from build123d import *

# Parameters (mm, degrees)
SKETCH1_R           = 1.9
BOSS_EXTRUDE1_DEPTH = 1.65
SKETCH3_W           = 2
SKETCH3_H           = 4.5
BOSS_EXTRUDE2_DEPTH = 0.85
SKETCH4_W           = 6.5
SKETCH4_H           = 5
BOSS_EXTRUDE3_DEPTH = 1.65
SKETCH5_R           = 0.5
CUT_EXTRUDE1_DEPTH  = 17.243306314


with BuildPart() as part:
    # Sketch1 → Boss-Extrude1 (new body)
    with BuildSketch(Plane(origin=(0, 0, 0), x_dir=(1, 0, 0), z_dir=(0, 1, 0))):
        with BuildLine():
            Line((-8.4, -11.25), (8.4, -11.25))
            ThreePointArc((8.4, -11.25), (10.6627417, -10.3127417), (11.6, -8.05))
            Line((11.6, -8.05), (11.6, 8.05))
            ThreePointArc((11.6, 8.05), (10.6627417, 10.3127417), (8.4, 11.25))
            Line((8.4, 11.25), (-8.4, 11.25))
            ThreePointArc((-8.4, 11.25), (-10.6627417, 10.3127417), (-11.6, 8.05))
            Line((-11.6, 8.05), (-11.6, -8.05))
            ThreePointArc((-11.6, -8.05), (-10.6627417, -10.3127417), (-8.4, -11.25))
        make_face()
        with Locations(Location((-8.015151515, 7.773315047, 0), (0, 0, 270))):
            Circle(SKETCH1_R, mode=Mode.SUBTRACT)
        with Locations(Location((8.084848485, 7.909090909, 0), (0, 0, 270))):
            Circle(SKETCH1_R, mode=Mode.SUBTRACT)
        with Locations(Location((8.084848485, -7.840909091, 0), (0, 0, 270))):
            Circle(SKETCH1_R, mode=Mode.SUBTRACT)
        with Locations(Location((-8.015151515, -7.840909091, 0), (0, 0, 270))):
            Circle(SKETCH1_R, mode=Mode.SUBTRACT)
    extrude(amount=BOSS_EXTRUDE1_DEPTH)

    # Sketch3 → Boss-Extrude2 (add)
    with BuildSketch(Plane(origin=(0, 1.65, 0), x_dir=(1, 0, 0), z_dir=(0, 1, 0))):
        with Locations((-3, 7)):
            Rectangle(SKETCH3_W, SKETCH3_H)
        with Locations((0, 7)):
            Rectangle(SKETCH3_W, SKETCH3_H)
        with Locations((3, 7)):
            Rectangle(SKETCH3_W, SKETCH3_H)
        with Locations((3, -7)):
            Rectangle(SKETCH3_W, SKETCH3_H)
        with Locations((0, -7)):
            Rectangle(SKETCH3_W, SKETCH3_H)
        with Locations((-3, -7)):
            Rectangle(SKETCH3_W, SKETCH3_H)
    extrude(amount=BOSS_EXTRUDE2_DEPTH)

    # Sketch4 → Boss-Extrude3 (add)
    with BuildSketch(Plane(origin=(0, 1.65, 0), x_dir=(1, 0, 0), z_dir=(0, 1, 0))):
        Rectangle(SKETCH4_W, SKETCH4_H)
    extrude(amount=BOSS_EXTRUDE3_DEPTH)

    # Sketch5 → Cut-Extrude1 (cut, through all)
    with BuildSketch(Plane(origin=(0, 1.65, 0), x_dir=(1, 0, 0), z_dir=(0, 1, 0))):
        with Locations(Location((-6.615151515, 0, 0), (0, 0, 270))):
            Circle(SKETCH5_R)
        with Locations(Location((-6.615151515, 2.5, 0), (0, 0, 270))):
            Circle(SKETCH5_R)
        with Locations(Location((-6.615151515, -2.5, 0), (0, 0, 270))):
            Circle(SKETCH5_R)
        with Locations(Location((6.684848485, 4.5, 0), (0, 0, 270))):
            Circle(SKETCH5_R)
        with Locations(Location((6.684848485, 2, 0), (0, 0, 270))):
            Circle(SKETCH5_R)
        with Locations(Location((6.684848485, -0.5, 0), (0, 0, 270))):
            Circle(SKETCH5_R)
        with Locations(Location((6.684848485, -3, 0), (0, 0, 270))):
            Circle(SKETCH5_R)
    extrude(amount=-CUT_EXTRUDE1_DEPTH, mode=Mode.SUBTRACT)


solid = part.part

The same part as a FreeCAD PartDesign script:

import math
import FreeCAD as App
import Part
import Sketcher

V = App.Vector

doc = App.newDocument("Part")
params = doc.addObject("Spreadsheet::Sheet", "Params")
for row, (alias, value) in enumerate([
    ("sketch1_diameter", "3.8 mm"),
    ("sketch1_radius", "3.2 mm"),
    ("sketch1_width", "16.8 mm"),
    ("sketch1_height", "16.1 mm"),
    ("pad1_length", "1.65 mm"),
    ("sketch2_width", "2 mm"),
    ("sketch2_height", "4.5 mm"),
    ("pad2_length", "0.85 mm"),
    ("sketch3_height", "5 mm"),
    ("sketch3_width", "6.5 mm"),
    ("pad3_length", "1.65 mm"),
    ("sketch4_diameter", "1 mm"),
], start=1):
    params.set(f"A{row}", alias)
    params.set(f"B{row}", "=" + value)
    params.setAlias(f"B{row}", alias)

body = doc.addObject("PartDesign::Body", "Body")

# Sketch on XZ plane
sketch1 = body.newObject("Sketcher::SketchObject", "Sketch")
sketch1.AttachmentSupport = (doc.getObject("XZ_Plane"), [""])
sketch1.MapMode = "FlatFace"
sketch1.addGeometry(Part.LineSegment(V(-8.4, 11.2, 0), V(8.4, 11.2, 0)), False)
sketch1.addGeometry(Part.ArcOfCircle(Part.Circle(V(8.4, 8.1, 0), V(0, 0, 1), 3.2), math.radians(0), math.radians(90)), False)
sketch1.addGeometry(Part.LineSegment(V(11.6, 8.1, 0), V(11.6, -8.1, 0)), False)
sketch1.addGeometry(Part.ArcOfCircle(Part.Circle(V(8.4, -8.1, 0), V(0, 0, 1), 3.2), math.radians(-90), math.radians(0)), False)
sketch1.addGeometry(Part.LineSegment(V(8.4, -11.2, 0), V(-8.4, -11.2, 0)), False)
sketch1.addGeometry(Part.ArcOfCircle(Part.Circle(V(-8.4, -8.1, 0), V(0, 0, 1), 3.2), math.radians(180), math.radians(270)), False)
sketch1.addGeometry(Part.LineSegment(V(-11.6, -8.1, 0), V(-11.6, 8.1, 0)), False)
sketch1.addGeometry(Part.ArcOfCircle(Part.Circle(V(-8.4, 8.1, 0), V(0, 0, 1), 3.2), math.radians(90), math.radians(180)), False)
sketch1.addGeometry(Part.Circle(V(-8, 7.8, 0), V(0, 0, 1), 1.9), False)
sketch1.addGeometry(Part.Circle(V(8.1, 7.8, 0), V(0, 0, 1), 1.9), False)
sketch1.addGeometry(Part.Circle(V(-8, -7.8, 0), V(0, 0, 1), 1.9), False)
sketch1.addGeometry(Part.Circle(V(8.1, -7.9, 0), V(0, 0, 1), 1.9), False)
sketch1.addConstraint(Sketcher.Constraint("Tangent", 0, 2, 1, 2))
sketch1.addConstraint(Sketcher.Constraint("Tangent", 1, 1, 2, 1))
sketch1.addConstraint(Sketcher.Constraint("Tangent", 2, 2, 3, 2))
sketch1.addConstraint(Sketcher.Constraint("Tangent", 3, 1, 4, 1))
sketch1.addConstraint(Sketcher.Constraint("Tangent", 4, 2, 5, 2))
sketch1.addConstraint(Sketcher.Constraint("Tangent", 5, 1, 6, 1))
sketch1.addConstraint(Sketcher.Constraint("Tangent", 6, 2, 7, 2))
sketch1.addConstraint(Sketcher.Constraint("Tangent", 7, 1, 0, 1))
sketch1.addConstraint(Sketcher.Constraint("Horizontal", 0))
sketch1.addConstraint(Sketcher.Constraint("Vertical", 2))
sketch1.addConstraint(Sketcher.Constraint("Horizontal", 4))
sketch1.addConstraint(Sketcher.Constraint("Vertical", 6))
sketch1.addConstraint(Sketcher.Constraint("Equal", 1, 3))
sketch1.addConstraint(Sketcher.Constraint("Equal", 3, 5))
sketch1.addConstraint(Sketcher.Constraint("Equal", 5, 7))
sketch1.addConstraint(Sketcher.Constraint("Equal", 8, 9))
sketch1.addConstraint(Sketcher.Constraint("Equal", 9, 10))
sketch1.addConstraint(Sketcher.Constraint("Equal", 10, 11))
sketch1.addConstraint(Sketcher.Constraint("Symmetric", 1, 3, 5, 3, -1, 1))
sketch1.addConstraint(Sketcher.Constraint("Horizontal", 8, 3, 9, 3))
sketch1.addConstraint(Sketcher.Constraint("Vertical", 8, 3, 10, 3))
sketch1.addConstraint(Sketcher.Constraint("Vertical", 9, 3, 11, 3))
sketch1.addConstraint(Sketcher.Constraint("Diameter", 8, 3.8))
sketch1.addConstraint(Sketcher.Constraint("Radius", 1, 3.2))
sketch1.addConstraint(Sketcher.Constraint("DistanceX", 0, 1, 0, 2, 16.8))
sketch1.addConstraint(Sketcher.Constraint("DistanceY", 2, 2, 2, 1, 16.1))
sketch1.addConstraint(Sketcher.Constraint("DistanceX", 8, 3, 9, 3, 16.1))
sketch1.addConstraint(Sketcher.Constraint("DistanceY", 11, 3, 9, 3, 15.75))
sketch1.addConstraint(Sketcher.Constraint("DistanceX", 8, 3, -1, 1, 8.015152))
sketch1.addConstraint(Sketcher.Constraint("DistanceY", -1, 1, 8, 3, 7.840909))
sketch1.addConstraint(Sketcher.Constraint("DistanceY", 10, 3, -1, 1, 7.773315))
sketch1.setExpression("Constraints[22]", "Params.sketch1_diameter")
sketch1.setExpression("Constraints[23]", "Params.sketch1_radius")
sketch1.setExpression("Constraints[24]", "Params.sketch1_width")
sketch1.setExpression("Constraints[25]", "Params.sketch1_height")
pad1 = body.newObject("PartDesign::Pad", "Pad")
pad1.Profile = sketch1
pad1.setExpression("Length", "Params.pad1_length")
pad1.Reversed = True

# Sketch on XZ plane
sketch2 = body.newObject("Sketcher::SketchObject", "Sketch001")
sketch2.AttachmentSupport = (doc.getObject("XZ_Plane"), [""])
sketch2.MapMode = "FlatFace"
sketch2.AttachmentOffset = App.Placement(V(0, 0, -1.65), App.Rotation())
sketch2.addGeometry(Part.LineSegment(V(-4, -9.2, 0), V(-4, -4.8, 0)), False)
sketch2.addGeometry(Part.LineSegment(V(-4, -4.8, 0), V(-2, -4.8, 0)), False)
sketch2.addGeometry(Part.LineSegment(V(-2, -4.8, 0), V(-2, -9.2, 0)), False)
sketch2.addGeometry(Part.LineSegment(V(-2, -9.2, 0), V(-4, -9.2, 0)), False)
sketch2.addGeometry(Part.LineSegment(V(-1, -9.2, 0), V(-1, -4.8, 0)), False)
sketch2.addGeometry(Part.LineSegment(V(-1, -4.8, 0), V(1, -4.8, 0)), False)
sketch2.addGeometry(Part.LineSegment(V(1, -4.8, 0), V(1, -9.2, 0)), False)
sketch2.addGeometry(Part.LineSegment(V(1, -9.2, 0), V(-1, -9.2, 0)), False)
sketch2.addGeometry(Part.LineSegment(V(2, -9.2, 0), V(2, -4.8, 0)), False)
sketch2.addGeometry(Part.LineSegment(V(2, -4.8, 0), V(4, -4.8, 0)), False)
sketch2.addGeometry(Part.LineSegment(V(4, -4.8, 0), V(4, -9.2, 0)), False)
sketch2.addGeometry(Part.LineSegment(V(4, -9.2, 0), V(2, -9.2, 0)), False)
sketch2.addGeometry(Part.LineSegment(V(2, 4.8, 0), V(2, 9.2, 0)), False)
sketch2.addGeometry(Part.LineSegment(V(2, 9.2, 0), V(4, 9.2, 0)), False)
sketch2.addGeometry(Part.LineSegment(V(4, 9.2, 0), V(4, 4.8, 0)), False)
sketch2.addGeometry(Part.LineSegment(V(4, 4.8, 0), V(2, 4.8, 0)), False)
sketch2.addGeometry(Part.LineSegment(V(-1, 4.8, 0), V(-1, 9.2, 0)), False)
sketch2.addGeometry(Part.LineSegment(V(-1, 9.2, 0), V(1, 9.2, 0)), False)
sketch2.addGeometry(Part.LineSegment(V(1, 9.2, 0), V(1, 4.8, 0)), False)
sketch2.addGeometry(Part.LineSegment(V(1, 4.8, 0), V(-1, 4.8, 0)), False)
sketch2.addGeometry(Part.LineSegment(V(-4, 4.8, 0), V(-4, 9.2, 0)), False)
sketch2.addGeometry(Part.LineSegment(V(-4, 9.2, 0), V(-2, 9.2, 0)), False)
sketch2.addGeometry(Part.LineSegment(V(-2, 9.2, 0), V(-2, 4.8, 0)), False)
sketch2.addGeometry(Part.LineSegment(V(-2, 4.8, 0), V(-4, 4.8, 0)), False)
sketch2.addConstraint(Sketcher.Constraint("Coincident", 0, 2, 1, 1))
sketch2.addConstraint(Sketcher.Constraint("Coincident", 1, 2, 2, 1))
sketch2.addConstraint(Sketcher.Constraint("Coincident", 2, 2, 3, 1))
sketch2.addConstraint(Sketcher.Constraint("Coincident", 3, 2, 0, 1))
sketch2.addConstraint(Sketcher.Constraint("Coincident", 4, 2, 5, 1))
sketch2.addConstraint(Sketcher.Constraint("Coincident", 5, 2, 6, 1))
sketch2.addConstraint(Sketcher.Constraint("Coincident", 6, 2, 7, 1))
sketch2.addConstraint(Sketcher.Constraint("Coincident", 7, 2, 4, 1))
sketch2.addConstraint(Sketcher.Constraint("Coincident", 8, 2, 9, 1))
sketch2.addConstraint(Sketcher.Constraint("Coincident", 9, 2, 10, 1))
sketch2.addConstraint(Sketcher.Constraint("Coincident", 10, 2, 11, 1))
sketch2.addConstraint(Sketcher.Constraint("Coincident", 11, 2, 8, 1))
sketch2.addConstraint(Sketcher.Constraint("Coincident", 12, 2, 13, 1))
sketch2.addConstraint(Sketcher.Constraint("Coincident", 13, 2, 14, 1))
sketch2.addConstraint(Sketcher.Constraint("Coincident", 14, 2, 15, 1))
sketch2.addConstraint(Sketcher.Constraint("Coincident", 15, 2, 12, 1))
sketch2.addConstraint(Sketcher.Constraint("Coincident", 16, 2, 17, 1))
sketch2.addConstraint(Sketcher.Constraint("Coincident", 17, 2, 18, 1))
sketch2.addConstraint(Sketcher.Constraint("Coincident", 18, 2, 19, 1))
sketch2.addConstraint(Sketcher.Constraint("Coincident", 19, 2, 16, 1))
sketch2.addConstraint(Sketcher.Constraint("Coincident", 20, 2, 21, 1))
sketch2.addConstraint(Sketcher.Constraint("Coincident", 21, 2, 22, 1))
sketch2.addConstraint(Sketcher.Constraint("Coincident", 22, 2, 23, 1))
sketch2.addConstraint(Sketcher.Constraint("Coincident", 23, 2, 20, 1))
sketch2.addConstraint(Sketcher.Constraint("Vertical", 0))
sketch2.addConstraint(Sketcher.Constraint("Horizontal", 1))
sketch2.addConstraint(Sketcher.Constraint("Vertical", 2))
sketch2.addConstraint(Sketcher.Constraint("Horizontal", 3))
sketch2.addConstraint(Sketcher.Constraint("Vertical", 4))
sketch2.addConstraint(Sketcher.Constraint("Horizontal", 5))
sketch2.addConstraint(Sketcher.Constraint("Vertical", 6))
sketch2.addConstraint(Sketcher.Constraint("Horizontal", 7))
sketch2.addConstraint(Sketcher.Constraint("Vertical", 8))
sketch2.addConstraint(Sketcher.Constraint("Horizontal", 9))
sketch2.addConstraint(Sketcher.Constraint("Vertical", 10))
sketch2.addConstraint(Sketcher.Constraint("Horizontal", 11))
sketch2.addConstraint(Sketcher.Constraint("Vertical", 12))
sketch2.addConstraint(Sketcher.Constraint("Horizontal", 13))
sketch2.addConstraint(Sketcher.Constraint("Vertical", 14))
sketch2.addConstraint(Sketcher.Constraint("Horizontal", 15))
sketch2.addConstraint(Sketcher.Constraint("Vertical", 16))
sketch2.addConstraint(Sketcher.Constraint("Horizontal", 17))
sketch2.addConstraint(Sketcher.Constraint("Vertical", 18))
sketch2.addConstraint(Sketcher.Constraint("Horizontal", 19))
sketch2.addConstraint(Sketcher.Constraint("Vertical", 20))
sketch2.addConstraint(Sketcher.Constraint("Horizontal", 21))
sketch2.addConstraint(Sketcher.Constraint("Vertical", 22))
sketch2.addConstraint(Sketcher.Constraint("Horizontal", 23))
sketch2.addConstraint(Sketcher.Constraint("Symmetric", 2, 2, 12, 2, -1, 1))
sketch2.addConstraint(Sketcher.Constraint("Symmetric", 0, 2, 14, 2, -1, 1))
sketch2.addConstraint(Sketcher.Constraint("Symmetric", 6, 2, 16, 2, -1, 1))
sketch2.addConstraint(Sketcher.Constraint("Symmetric", 4, 2, 18, 2, -1, 1))
sketch2.addConstraint(Sketcher.Constraint("Symmetric", 10, 2, 20, 2, -1, 1))
sketch2.addConstraint(Sketcher.Constraint("Symmetric", 8, 2, 22, 2, -1, 1))
sketch2.addConstraint(Sketcher.Constraint("Symmetric", 1, 2, 8, 2, -2))
sketch2.addConstraint(Sketcher.Constraint("Symmetric", 3, 2, 10, 2, -2))
sketch2.addConstraint(Sketcher.Constraint("Horizontal", 1, 2, 4, 2))
sketch2.addConstraint(Sketcher.Constraint("Horizontal", 3, 2, 6, 2))
sketch2.addConstraint(Sketcher.Constraint("Vertical", 7, 2, 16, 2))
sketch2.addConstraint(Sketcher.Constraint("Equal", 3, 5))
sketch2.addConstraint(Sketcher.Constraint("DistanceX", 1, 1, 1, 2, 2.0))
sketch2.addConstraint(Sketcher.Constraint("DistanceY", 0, 1, 0, 2, 4.5))
sketch2.addConstraint(Sketcher.Constraint("DistanceX", 0, 2, -1, 1, 4.0))
sketch2.addConstraint(Sketcher.Constraint("DistanceY", 8, 2, 12, 2, 14.0))
sketch2.setExpression("Constraints[60]", "Params.sketch2_width")
sketch2.setExpression("Constraints[61]", "Params.sketch2_height")
pad2 = body.newObject("PartDesign::Pad", "Pad001")
pad2.Profile = sketch2
pad2.setExpression("Length", "Params.pad2_length")
pad2.Reversed = True

# Sketch on XZ plane
sketch3 = body.newObject("Sketcher::SketchObject", "Sketch002")
sketch3.AttachmentSupport = (doc.getObject("XZ_Plane"), [""])
sketch3.MapMode = "FlatFace"
sketch3.AttachmentOffset = App.Placement(V(0, 0, -1.65), App.Rotation())
sketch3.addGeometry(Part.LineSegment(V(-3, -2, 0), V(-3, 2, 0)), False)
sketch3.addGeometry(Part.LineSegment(V(-3, 2, 0), V(3, 2, 0)), False)
sketch3.addGeometry(Part.LineSegment(V(3, 2, 0), V(3, -2, 0)), False)
sketch3.addGeometry(Part.LineSegment(V(3, -2, 0), V(-3, -2, 0)), False)
sketch3.addConstraint(Sketcher.Constraint("Coincident", 0, 2, 1, 1))
sketch3.addConstraint(Sketcher.Constraint("Coincident", 1, 2, 2, 1))
sketch3.addConstraint(Sketcher.Constraint("Coincident", 2, 2, 3, 1))
sketch3.addConstraint(Sketcher.Constraint("Coincident", 3, 2, 0, 1))
sketch3.addConstraint(Sketcher.Constraint("Vertical", 0))
sketch3.addConstraint(Sketcher.Constraint("Horizontal", 1))
sketch3.addConstraint(Sketcher.Constraint("Vertical", 2))
sketch3.addConstraint(Sketcher.Constraint("Horizontal", 3))
sketch3.addConstraint(Sketcher.Constraint("Symmetric", 0, 2, 2, 2, -1, 1))
sketch3.addConstraint(Sketcher.Constraint("DistanceY", 0, 1, 0, 2, 5.0))
sketch3.addConstraint(Sketcher.Constraint("DistanceX", 1, 1, 1, 2, 6.5))
sketch3.setExpression("Constraints[9]", "Params.sketch3_height")
sketch3.setExpression("Constraints[10]", "Params.sketch3_width")
pad3 = body.newObject("PartDesign::Pad", "Pad002")
pad3.Profile = sketch3
pad3.setExpression("Length", "Params.pad3_length")
pad3.Reversed = True

# Sketch on XZ plane
sketch4 = body.newObject("Sketcher::SketchObject", "Sketch003")
sketch4.AttachmentSupport = (doc.getObject("XZ_Plane"), [""])
sketch4.MapMode = "FlatFace"
sketch4.AttachmentOffset = App.Placement(V(0, 0, -1.65), App.Rotation())
sketch4.addGeometry(Part.Circle(V(-6.6, 0, 0), V(0, 0, 1), 0.5), False)
sketch4.addGeometry(Part.Circle(V(-6.6, -2.5, 0), V(0, 0, 1), 0.5), False)
sketch4.addGeometry(Part.Circle(V(-6.6, 2.5, 0), V(0, 0, 1), 0.5), False)
sketch4.addGeometry(Part.Circle(V(6.7, -4.5, 0), V(0, 0, 1), 0.5), False)
sketch4.addGeometry(Part.Circle(V(6.7, -2, 0), V(0, 0, 1), 0.5), False)
sketch4.addGeometry(Part.Circle(V(6.7, 0.5, 0), V(0, 0, 1), 0.5), False)
sketch4.addGeometry(Part.Circle(V(6.7, 3, 0), V(0, 0, 1), 0.5), False)
sketch4.addConstraint(Sketcher.Constraint("Equal", 0, 1))
sketch4.addConstraint(Sketcher.Constraint("Equal", 1, 2))
sketch4.addConstraint(Sketcher.Constraint("Equal", 2, 3))
sketch4.addConstraint(Sketcher.Constraint("Equal", 3, 4))
sketch4.addConstraint(Sketcher.Constraint("Equal", 4, 5))
sketch4.addConstraint(Sketcher.Constraint("Equal", 5, 6))
sketch4.addConstraint(Sketcher.Constraint("Symmetric", 1, 3, 2, 3, -1))
sketch4.addConstraint(Sketcher.Constraint("PointOnObject", 0, 3, -1))
sketch4.addConstraint(Sketcher.Constraint("Vertical", 0, 3, 1, 3))
sketch4.addConstraint(Sketcher.Constraint("Vertical", 3, 3, 4, 3))
sketch4.addConstraint(Sketcher.Constraint("Vertical", 4, 3, 5, 3))
sketch4.addConstraint(Sketcher.Constraint("Vertical", 5, 3, 6, 3))
sketch4.addConstraint(Sketcher.Constraint("Diameter", 0, 1.0))
sketch4.addConstraint(Sketcher.Constraint("DistanceY", 4, 3, -1, 1, 2.0))
sketch4.addConstraint(Sketcher.Constraint("DistanceY", -1, 1, 6, 3, 3.0))
sketch4.addConstraint(Sketcher.Constraint("DistanceY", 1, 3, 2, 3, 5.0))
sketch4.addConstraint(Sketcher.Constraint("DistanceY", 3, 3, 1, 3, 2.0))
sketch4.addConstraint(Sketcher.Constraint("DistanceY", 3, 3, 5, 3, 5.0))
sketch4.addConstraint(Sketcher.Constraint("DistanceX", 1, 3, 3, 3, 13.3))
sketch4.addConstraint(Sketcher.Constraint("DistanceX", 0, 3, -1, 1, 6.615152))
sketch4.setExpression("Constraints[12]", "Params.sketch4_diameter")
pocket1 = body.newObject("PartDesign::Pocket", "Pocket")
pocket1.Profile = sketch4
pocket1.Type = "ThroughAll"
pocket1.Reversed = True

doc.recompute()
